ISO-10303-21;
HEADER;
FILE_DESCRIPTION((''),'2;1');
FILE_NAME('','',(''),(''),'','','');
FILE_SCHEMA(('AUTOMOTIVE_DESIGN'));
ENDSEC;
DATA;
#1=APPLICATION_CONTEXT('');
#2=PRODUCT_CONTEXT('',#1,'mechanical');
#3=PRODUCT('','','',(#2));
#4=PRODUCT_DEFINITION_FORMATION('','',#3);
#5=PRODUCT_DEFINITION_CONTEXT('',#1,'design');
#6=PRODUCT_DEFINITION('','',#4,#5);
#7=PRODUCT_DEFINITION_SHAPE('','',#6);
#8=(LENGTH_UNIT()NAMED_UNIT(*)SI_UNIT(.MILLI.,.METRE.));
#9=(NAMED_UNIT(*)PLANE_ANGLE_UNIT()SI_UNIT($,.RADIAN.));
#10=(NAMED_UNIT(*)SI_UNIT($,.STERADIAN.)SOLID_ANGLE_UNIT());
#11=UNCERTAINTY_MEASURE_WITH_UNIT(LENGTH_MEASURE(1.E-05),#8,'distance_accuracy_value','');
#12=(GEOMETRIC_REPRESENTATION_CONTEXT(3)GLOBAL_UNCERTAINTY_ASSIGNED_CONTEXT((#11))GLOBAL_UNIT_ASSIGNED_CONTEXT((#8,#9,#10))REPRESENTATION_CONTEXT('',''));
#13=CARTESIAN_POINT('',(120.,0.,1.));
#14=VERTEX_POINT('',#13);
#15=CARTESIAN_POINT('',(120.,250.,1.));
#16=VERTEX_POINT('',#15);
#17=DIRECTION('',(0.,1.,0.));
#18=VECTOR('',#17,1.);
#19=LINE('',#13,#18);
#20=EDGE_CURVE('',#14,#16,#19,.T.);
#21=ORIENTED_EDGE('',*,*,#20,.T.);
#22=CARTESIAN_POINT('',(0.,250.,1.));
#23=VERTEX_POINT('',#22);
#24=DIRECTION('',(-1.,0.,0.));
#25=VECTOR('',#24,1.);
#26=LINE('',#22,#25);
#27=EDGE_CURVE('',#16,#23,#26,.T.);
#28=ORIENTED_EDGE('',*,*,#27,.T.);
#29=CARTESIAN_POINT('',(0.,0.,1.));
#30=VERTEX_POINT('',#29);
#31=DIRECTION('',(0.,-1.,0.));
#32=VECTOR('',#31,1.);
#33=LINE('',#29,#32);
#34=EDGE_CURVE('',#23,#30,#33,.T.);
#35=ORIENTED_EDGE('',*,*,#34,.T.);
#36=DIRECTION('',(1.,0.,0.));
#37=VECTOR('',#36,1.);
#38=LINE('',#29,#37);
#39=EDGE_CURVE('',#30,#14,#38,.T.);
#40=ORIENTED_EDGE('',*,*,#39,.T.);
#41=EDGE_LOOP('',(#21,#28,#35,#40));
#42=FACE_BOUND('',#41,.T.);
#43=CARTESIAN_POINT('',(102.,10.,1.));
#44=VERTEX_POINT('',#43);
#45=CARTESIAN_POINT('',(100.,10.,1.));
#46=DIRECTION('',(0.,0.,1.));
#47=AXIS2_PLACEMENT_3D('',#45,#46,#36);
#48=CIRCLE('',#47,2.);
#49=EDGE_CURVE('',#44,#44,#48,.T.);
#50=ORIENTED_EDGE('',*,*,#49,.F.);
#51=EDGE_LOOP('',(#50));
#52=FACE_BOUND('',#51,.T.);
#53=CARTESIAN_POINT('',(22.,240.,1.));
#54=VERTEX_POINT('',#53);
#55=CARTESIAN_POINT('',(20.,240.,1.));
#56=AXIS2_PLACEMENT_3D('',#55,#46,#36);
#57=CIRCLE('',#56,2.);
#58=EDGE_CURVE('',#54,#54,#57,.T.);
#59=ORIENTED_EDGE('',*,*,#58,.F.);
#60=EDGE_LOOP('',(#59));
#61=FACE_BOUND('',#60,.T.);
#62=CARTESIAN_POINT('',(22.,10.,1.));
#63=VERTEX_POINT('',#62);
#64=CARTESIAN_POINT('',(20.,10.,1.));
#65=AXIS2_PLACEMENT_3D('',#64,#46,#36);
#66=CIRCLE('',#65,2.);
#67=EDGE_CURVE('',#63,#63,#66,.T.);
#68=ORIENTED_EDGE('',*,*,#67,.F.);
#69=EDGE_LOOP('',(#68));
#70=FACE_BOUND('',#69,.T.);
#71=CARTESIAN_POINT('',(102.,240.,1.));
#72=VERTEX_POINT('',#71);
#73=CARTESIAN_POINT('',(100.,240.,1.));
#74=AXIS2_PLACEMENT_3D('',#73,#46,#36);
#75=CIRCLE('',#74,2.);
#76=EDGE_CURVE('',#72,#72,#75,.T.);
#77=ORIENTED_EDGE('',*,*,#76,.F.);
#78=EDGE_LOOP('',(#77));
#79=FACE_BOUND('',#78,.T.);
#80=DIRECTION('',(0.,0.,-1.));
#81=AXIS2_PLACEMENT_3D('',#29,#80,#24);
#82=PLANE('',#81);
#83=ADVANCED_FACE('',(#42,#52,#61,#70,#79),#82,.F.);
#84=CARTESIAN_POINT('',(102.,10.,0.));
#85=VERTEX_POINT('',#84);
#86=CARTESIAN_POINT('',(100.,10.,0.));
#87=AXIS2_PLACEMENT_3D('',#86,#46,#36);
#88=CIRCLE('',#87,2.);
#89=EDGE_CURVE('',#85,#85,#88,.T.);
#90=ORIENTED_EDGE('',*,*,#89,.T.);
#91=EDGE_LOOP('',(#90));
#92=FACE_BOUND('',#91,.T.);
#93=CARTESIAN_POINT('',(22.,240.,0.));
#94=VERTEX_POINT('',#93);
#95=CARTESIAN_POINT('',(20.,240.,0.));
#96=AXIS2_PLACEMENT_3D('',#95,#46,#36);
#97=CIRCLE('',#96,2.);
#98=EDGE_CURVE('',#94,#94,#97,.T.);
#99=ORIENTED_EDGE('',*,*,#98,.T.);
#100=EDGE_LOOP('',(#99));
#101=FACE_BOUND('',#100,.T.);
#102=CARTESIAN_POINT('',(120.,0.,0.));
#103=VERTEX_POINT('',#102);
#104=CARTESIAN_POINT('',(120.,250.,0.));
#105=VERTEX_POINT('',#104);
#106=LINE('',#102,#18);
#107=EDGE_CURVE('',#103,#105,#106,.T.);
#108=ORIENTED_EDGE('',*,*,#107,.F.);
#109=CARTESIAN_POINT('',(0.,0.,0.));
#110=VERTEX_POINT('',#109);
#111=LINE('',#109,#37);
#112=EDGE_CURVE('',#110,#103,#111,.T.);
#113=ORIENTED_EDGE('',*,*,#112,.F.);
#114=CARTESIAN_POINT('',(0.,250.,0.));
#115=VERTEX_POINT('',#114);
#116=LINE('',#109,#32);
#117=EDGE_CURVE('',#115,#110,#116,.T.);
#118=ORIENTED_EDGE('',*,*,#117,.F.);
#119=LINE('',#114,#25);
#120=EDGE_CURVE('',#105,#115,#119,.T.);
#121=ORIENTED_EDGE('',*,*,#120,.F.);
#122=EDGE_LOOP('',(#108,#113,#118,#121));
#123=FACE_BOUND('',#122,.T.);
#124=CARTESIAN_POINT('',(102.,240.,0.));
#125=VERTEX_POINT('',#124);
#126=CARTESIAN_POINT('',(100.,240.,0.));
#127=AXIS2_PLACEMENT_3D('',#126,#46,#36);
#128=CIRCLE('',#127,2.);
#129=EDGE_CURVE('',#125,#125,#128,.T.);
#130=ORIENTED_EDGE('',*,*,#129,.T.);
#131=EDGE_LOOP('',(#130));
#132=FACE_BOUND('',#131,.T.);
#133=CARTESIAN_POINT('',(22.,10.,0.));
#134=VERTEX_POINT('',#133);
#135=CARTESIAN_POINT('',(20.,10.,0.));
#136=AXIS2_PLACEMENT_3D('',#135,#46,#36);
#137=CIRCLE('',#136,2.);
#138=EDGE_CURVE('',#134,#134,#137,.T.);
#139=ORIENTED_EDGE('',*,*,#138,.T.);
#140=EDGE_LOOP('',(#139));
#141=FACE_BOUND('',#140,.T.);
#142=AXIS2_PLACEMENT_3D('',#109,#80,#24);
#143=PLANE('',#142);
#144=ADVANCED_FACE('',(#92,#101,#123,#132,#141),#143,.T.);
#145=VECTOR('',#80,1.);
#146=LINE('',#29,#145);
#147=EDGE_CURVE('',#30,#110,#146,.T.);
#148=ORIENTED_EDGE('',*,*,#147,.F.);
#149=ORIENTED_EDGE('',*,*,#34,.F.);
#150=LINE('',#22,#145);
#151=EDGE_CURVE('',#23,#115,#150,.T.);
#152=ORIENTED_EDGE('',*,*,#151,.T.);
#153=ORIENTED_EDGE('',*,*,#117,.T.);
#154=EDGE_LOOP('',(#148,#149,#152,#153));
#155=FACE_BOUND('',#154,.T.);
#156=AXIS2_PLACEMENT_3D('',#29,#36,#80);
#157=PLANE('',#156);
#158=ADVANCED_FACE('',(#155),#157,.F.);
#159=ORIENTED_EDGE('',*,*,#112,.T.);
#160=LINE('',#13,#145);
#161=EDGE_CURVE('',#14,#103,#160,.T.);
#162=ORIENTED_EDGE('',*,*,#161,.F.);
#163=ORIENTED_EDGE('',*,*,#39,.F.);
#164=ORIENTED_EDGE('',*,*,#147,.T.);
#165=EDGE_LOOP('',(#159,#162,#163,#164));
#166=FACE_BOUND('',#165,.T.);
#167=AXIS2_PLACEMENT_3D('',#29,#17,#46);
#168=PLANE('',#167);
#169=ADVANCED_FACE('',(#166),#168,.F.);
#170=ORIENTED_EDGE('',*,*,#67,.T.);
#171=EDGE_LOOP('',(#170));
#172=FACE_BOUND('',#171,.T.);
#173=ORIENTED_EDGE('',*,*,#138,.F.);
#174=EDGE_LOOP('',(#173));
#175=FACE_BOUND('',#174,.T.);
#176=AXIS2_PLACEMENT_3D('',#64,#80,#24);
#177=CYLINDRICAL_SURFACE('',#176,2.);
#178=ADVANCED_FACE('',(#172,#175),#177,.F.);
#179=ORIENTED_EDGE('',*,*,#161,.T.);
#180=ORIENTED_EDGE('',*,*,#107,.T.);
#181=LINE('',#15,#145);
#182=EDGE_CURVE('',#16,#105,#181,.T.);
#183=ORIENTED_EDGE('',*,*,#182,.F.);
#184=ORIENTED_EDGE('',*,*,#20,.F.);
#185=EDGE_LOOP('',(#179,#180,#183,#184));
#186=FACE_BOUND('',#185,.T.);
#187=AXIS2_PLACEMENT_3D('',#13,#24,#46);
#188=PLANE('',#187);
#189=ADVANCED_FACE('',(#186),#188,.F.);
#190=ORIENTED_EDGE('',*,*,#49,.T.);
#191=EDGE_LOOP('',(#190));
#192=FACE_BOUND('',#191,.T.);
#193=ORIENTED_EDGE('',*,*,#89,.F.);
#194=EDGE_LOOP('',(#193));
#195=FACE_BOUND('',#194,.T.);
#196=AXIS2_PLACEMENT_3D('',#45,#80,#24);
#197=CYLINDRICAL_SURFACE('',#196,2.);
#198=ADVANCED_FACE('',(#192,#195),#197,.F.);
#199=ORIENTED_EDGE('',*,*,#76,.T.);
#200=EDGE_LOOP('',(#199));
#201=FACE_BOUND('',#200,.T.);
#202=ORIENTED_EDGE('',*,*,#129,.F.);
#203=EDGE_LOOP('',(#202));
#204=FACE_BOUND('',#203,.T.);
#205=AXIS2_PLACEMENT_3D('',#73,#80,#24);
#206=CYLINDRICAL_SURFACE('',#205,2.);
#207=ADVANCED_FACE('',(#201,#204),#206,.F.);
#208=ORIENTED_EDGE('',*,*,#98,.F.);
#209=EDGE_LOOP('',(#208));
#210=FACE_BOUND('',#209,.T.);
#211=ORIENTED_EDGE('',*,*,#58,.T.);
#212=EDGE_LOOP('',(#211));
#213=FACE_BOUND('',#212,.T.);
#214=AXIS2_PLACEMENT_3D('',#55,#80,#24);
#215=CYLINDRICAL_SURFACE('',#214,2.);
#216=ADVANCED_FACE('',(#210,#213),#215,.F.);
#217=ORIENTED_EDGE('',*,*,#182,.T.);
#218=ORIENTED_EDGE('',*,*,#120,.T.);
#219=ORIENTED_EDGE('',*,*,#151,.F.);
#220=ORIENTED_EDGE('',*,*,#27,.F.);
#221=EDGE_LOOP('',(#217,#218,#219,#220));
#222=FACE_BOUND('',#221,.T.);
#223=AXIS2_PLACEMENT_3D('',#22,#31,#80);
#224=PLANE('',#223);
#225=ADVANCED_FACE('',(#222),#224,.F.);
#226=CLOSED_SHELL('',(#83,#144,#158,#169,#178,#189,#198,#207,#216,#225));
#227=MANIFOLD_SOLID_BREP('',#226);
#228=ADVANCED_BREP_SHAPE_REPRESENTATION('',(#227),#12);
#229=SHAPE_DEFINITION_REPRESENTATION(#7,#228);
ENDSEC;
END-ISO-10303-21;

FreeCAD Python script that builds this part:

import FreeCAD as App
import Part
import Sketcher


def add_polygon(sketch, points):
    """Adds a closed chain of lines whose ends are joined by coincident constraints."""
    first, n = sketch.GeometryCount, len(points)
    for a, b in zip(points, points[1:] + points[:1]):
        sketch.addGeometry(Part.LineSegment(App.Vector(*a, 0), App.Vector(*b, 0)), False)
    for i in range(n):
        sketch.addConstraint(Sketcher.Constraint("Coincident", first + i, 2, first + (i + 1) % n, 1))

doc = App.newDocument("Part")
body = doc.addObject("PartDesign::Body", "Body")

# Sketch on XY plane
sketch1 = body.newObject("Sketcher::SketchObject", "Sketch")
sketch1.AttachmentSupport = (doc.getObject("XY_Plane"), [""])
sketch1.MapMode = "FlatFace"
add_polygon(sketch1, [(0, 250), (0, 0), (120, 0), (120, 250)])  # lines 0-3
sketch1.addGeometry(Part.Circle(App.Vector(20, 10, 0), App.Vector(0, 0, 1), 2), False)  # 4
sketch1.addGeometry(Part.Circle(App.Vector(100, 10, 0), App.Vector(0, 0, 1), 2), False)  # 5
sketch1.addGeometry(Part.Circle(App.Vector(20, 240, 0), App.Vector(0, 0, 1), 2), False)  # 6
sketch1.addGeometry(Part.Circle(App.Vector(100, 240, 0), App.Vector(0, 0, 1), 2), False)  # 7
sketch1.addConstraint([
    Sketcher.Constraint("Vertical", 0),
    Sketcher.Constraint("Horizontal", 1),
    Sketcher.Constraint("Vertical", 2),
    Sketcher.Constraint("Horizontal", 3),
    Sketcher.Constraint("Coincident", 0, 2, -1, 1),
    Sketcher.Constraint("Equal", 4, 5),
    Sketcher.Constraint("Equal", 5, 6),
    Sketcher.Constraint("Equal", 6, 7),
    Sketcher.Constraint("Horizontal", 4, 3, 5, 3),
    Sketcher.Constraint("Horizontal", 6, 3, 7, 3),
    Sketcher.Constraint("Vertical", 4, 3, 6, 3),
    Sketcher.Constraint("Vertical", 5, 3, 7, 3),
    Sketcher.Constraint("Diameter", 4, 4.0),
    Sketcher.Constraint("DistanceX", 1, 1, 1, 2, 120.0),
    Sketcher.Constraint("DistanceY", 0, 2, 0, 1, 250.0),
    Sketcher.Constraint("DistanceX", -1, 1, 4, 3, 20.0),
    Sketcher.Constraint("DistanceY", -1, 1, 4, 3, 10.0),
    Sketcher.Constraint("DistanceX", -1, 1, 5, 3, 100.0),
    Sketcher.Constraint("DistanceY", -1, 1, 6, 3, 240.0),
])
pad1 = body.newObject("PartDesign::Pad", "Pad")
pad1.Profile = sketch1
pad1.Length = 1

doc.recompute()
